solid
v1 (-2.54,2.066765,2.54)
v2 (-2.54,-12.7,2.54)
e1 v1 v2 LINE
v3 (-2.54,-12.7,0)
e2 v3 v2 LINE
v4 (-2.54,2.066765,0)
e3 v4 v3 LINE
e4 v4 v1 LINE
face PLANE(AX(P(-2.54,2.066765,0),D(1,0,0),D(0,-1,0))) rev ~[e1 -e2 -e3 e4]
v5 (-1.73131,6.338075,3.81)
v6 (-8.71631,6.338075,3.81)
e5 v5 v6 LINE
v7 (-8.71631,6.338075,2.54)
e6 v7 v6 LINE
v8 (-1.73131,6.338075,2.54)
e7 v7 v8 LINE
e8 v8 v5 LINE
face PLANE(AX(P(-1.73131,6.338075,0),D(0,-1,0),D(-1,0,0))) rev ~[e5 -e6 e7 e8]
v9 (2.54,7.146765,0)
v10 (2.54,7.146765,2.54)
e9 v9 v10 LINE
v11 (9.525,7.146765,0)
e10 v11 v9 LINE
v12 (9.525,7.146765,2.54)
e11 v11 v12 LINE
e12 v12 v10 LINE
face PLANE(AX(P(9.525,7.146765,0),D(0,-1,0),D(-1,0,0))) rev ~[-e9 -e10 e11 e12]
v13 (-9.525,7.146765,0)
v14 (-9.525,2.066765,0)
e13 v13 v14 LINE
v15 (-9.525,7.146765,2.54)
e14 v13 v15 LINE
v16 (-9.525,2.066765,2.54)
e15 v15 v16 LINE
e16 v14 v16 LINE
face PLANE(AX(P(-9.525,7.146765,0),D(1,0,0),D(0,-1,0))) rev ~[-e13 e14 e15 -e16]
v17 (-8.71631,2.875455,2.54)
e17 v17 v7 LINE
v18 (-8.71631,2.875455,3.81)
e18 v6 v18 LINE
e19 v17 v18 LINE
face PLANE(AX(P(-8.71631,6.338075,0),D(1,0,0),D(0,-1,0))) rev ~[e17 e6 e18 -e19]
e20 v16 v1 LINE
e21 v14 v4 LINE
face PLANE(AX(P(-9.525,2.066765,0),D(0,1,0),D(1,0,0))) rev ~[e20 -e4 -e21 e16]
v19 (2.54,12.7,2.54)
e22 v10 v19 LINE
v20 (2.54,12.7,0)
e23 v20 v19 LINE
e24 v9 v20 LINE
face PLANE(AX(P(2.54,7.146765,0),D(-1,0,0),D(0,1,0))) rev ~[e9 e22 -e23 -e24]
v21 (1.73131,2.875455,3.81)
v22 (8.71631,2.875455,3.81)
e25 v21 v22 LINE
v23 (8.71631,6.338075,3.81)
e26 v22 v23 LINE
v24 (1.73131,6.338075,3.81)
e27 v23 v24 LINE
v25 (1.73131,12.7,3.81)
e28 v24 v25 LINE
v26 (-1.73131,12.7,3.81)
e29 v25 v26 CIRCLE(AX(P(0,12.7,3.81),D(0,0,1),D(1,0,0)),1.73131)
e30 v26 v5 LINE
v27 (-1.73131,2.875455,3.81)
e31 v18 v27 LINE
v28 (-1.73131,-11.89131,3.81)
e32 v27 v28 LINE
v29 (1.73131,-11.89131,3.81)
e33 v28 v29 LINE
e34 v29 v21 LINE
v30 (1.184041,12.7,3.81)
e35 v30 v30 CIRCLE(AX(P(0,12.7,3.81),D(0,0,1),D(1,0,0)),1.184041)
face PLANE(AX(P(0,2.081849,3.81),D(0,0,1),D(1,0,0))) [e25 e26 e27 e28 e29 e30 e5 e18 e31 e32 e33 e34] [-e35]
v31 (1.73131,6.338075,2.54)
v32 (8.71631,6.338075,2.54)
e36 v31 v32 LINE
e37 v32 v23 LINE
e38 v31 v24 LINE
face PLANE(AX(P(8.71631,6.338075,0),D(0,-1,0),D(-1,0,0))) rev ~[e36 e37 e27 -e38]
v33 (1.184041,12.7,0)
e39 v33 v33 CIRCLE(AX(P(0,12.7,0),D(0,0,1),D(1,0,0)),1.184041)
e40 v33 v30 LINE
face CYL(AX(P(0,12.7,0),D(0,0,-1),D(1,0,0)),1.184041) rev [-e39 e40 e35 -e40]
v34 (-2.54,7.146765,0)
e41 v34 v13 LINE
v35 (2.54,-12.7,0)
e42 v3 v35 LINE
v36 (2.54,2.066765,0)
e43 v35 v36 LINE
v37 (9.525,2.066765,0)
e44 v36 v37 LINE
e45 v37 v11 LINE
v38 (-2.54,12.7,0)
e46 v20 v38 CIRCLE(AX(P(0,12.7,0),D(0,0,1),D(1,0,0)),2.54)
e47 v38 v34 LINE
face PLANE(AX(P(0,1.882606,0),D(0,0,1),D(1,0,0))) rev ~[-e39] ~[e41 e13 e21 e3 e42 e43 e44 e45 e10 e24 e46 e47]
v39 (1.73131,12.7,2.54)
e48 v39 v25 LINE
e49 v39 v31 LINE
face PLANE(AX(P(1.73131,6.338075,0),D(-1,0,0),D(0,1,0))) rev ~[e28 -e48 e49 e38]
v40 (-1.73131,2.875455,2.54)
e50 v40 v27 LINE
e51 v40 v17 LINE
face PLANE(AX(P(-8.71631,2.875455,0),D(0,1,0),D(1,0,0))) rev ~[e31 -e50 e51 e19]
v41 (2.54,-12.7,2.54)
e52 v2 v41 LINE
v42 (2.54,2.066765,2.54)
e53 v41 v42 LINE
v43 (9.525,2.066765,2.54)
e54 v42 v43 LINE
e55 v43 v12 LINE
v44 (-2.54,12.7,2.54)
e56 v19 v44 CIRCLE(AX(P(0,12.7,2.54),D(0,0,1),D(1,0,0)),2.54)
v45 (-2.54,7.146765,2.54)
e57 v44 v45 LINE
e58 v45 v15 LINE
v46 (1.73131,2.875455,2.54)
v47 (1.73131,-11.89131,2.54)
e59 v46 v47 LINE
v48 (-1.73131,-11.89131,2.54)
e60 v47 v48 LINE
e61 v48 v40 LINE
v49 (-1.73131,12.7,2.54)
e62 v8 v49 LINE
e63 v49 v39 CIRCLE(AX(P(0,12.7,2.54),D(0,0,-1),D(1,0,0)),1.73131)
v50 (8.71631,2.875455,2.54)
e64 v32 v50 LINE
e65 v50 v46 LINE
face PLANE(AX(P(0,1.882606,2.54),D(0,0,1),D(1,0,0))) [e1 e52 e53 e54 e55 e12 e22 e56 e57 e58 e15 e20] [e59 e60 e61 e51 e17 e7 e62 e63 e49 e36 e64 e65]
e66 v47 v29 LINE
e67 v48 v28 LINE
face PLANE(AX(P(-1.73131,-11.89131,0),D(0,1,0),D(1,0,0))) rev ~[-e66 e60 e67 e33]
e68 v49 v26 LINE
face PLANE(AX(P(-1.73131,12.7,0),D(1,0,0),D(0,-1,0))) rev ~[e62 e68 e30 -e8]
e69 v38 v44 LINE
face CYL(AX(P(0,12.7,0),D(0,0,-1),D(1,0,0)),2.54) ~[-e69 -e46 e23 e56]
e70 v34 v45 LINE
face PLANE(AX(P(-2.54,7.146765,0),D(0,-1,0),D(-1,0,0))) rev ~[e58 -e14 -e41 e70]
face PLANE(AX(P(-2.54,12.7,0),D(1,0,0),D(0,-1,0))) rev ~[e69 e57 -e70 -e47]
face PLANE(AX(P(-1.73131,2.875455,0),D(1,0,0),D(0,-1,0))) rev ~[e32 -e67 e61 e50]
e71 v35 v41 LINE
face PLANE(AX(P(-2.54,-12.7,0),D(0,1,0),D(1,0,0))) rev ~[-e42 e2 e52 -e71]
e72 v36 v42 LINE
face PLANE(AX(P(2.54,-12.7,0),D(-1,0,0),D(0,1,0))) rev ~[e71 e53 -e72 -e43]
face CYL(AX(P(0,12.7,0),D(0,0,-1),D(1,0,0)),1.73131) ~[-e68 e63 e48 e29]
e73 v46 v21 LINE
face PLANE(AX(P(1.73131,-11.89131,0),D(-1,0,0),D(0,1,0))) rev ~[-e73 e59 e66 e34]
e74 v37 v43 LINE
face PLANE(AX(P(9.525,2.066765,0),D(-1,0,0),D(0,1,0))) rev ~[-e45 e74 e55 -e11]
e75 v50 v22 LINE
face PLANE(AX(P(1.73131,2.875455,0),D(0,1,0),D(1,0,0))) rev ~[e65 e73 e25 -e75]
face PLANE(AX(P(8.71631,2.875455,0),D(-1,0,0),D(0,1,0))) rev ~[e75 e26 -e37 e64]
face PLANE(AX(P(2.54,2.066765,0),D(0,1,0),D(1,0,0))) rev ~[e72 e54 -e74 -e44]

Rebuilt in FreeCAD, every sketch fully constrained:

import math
import FreeCAD as App
import Part
import Sketcher
Q = App.Units.Quantity

doc = App.newDocument("Part")
body = doc.addObject("PartDesign::Body", "Body")

# Sketch on XY plane
sketch1 = body.newObject("Sketcher::SketchObject", "Sketch")
sketch1.AttachmentSupport = (doc.getObject("XY_Plane"), [""])
sketch1.MapMode = "FlatFace"
sketch1.addGeometry(Part.LineSegment(App.Vector(-2.5, 2.1, 0), App.Vector(-2.5, -12.7, 0)), False)
sketch1.addGeometry(Part.LineSegment(App.Vector(-2.5, -12.7, 0), App.Vector(2.5, -12.7, 0)), False)
sketch1.addGeometry(Part.LineSegment(App.Vector(2.5, -12.7, 0), App.Vector(2.5, 2.1, 0)), False)
sketch1.addGeometry(Part.LineSegment(App.Vector(2.5, 2.1, 0), App.Vector(9.5, 2.1, 0)), False)
sketch1.addGeometry(Part.LineSegment(App.Vector(9.5, 2.1, 0), App.Vector(9.5, 7.1, 0)), False)
sketch1.addGeometry(Part.LineSegment(App.Vector(9.5, 7.1, 0), App.Vector(2.5, 7.1, 0)), False)
sketch1.addGeometry(Part.LineSegment(App.Vector(2.5, 7.1, 0), App.Vector(2.5, 12.7, 0)), False)
sketch1.addGeometry(Part.ArcOfCircle(Part.Circle(App.Vector(0, 12.7, 0), App.Vector(0, 0, 1), 2.5), math.radians(0), math.radians(180)), False)
sketch1.addGeometry(Part.LineSegment(App.Vector(-2.5, 12.7, 0), App.Vector(-2.5, 7.1, 0)), False)
sketch1.addGeometry(Part.LineSegment(App.Vector(-2.5, 7.1, 0), App.Vector(-9.5, 7.1, 0)), False)
sketch1.addGeometry(Part.LineSegment(App.Vector(-9.5, 7.1, 0), App.Vector(-9.5, 2.1, 0)), False)
sketch1.addGeometry(Part.LineSegment(App.Vector(-9.5, 2.1, 0), App.Vector(-2.5, 2.1, 0)), False)
sketch1.addGeometry(Part.Circle(App.Vector(0, 12.7, 0), App.Vector(0, 0, 1), 1.2), False)
sketch1.addConstraint(Sketcher.Constraint("Coincident", 0, 2, 1, 1))
sketch1.addConstraint(Sketcher.Constraint("Coincident", 1, 2, 2, 1))
sketch1.addConstraint(Sketcher.Constraint("Coincident", 2, 2, 3, 1))
sketch1.addConstraint(Sketcher.Constraint("Coincident", 3, 2, 4, 1))
sketch1.addConstraint(Sketcher.Constraint("Coincident", 4, 2, 5, 1))
sketch1.addConstraint(Sketcher.Constraint("Coincident", 5, 2, 6, 1))
sketch1.addConstraint(Sketcher.Constraint("Tangent", 6, 2, 7, 1))
sketch1.addConstraint(Sketcher.Constraint("Tangent", 7, 2, 8, 1))
sketch1.addConstraint(Sketcher.Constraint("Coincident", 8, 2, 9, 1))
sketch1.addConstraint(Sketcher.Constraint("Coincident", 9, 2, 10, 1))
sketch1.addConstraint(Sketcher.Constraint("Coincident", 10, 2, 11, 1))
sketch1.addConstraint(Sketcher.Constraint("Coincident", 11, 2, 0, 1))
sketch1.addConstraint(Sketcher.Constraint("Vertical", 0))
sketch1.addConstraint(Sketcher.Constraint("Horizontal", 1))
sketch1.addConstraint(Sketcher.Constraint("Vertical", 2))
sketch1.addConstraint(Sketcher.Constraint("Horizontal", 3))
sketch1.addConstraint(Sketcher.Constraint("Vertical", 4))
sketch1.addConstraint(Sketcher.Constraint("Horizontal", 5))
sketch1.addConstraint(Sketcher.Constraint("Vertical", 6))
sketch1.addConstraint(Sketcher.Constraint("Vertical", 8))
sketch1.addConstraint(Sketcher.Constraint("Horizontal", 9))
sketch1.addConstraint(Sketcher.Constraint("Vertical", 10))
sketch1.addConstraint(Sketcher.Constraint("Horizontal", 11))
sketch1.addConstraint(Sketcher.Constraint("Coincident", 12, 3, 7, 3))
sketch1.addConstraint(Sketcher.Constraint("Symmetric", 0, 2, 6, 2, -1, 1))
sketch1.addConstraint(Sketcher.Constraint("Symmetric", 5, 2, 8, 2, -2))
sketch1.addConstraint(Sketcher.Constraint("Symmetric", 3, 2, 10, 2, -2))
sketch1.addConstraint(Sketcher.Constraint("Vertical", 2, 2, 5, 2))
sketch1.addConstraint(Sketcher.Constraint("Equal", 1, 4))
sketch1.addConstraint(Sketcher.Constraint("Radius", 7, Q("0.1 in")))
sketch1.addConstraint(Sketcher.Constraint("DistanceY", 0, 2, 7, 3, Q("1 in")))
sketch1.addConstraint(Sketcher.Constraint("DistanceX", 3, 1, 3, 2, Q("0.275 in")))
sketch1.addConstraint(Sketcher.Constraint("Diameter", 12, Q("2.368082 mm")))
sketch1.addConstraint(Sketcher.Constraint("DistanceY", 0, 2, 0, 1, Q("14.766765 mm")))
pad1 = body.newObject("PartDesign::Pad", "Pad")
pad1.Profile = sketch1
pad1.Length = Q("0.1 in")

# Sketch on XY plane
sketch2 = body.newObject("Sketcher::SketchObject", "Sketch001")
sketch2.AttachmentSupport = (doc.getObject("XY_Plane"), [""])
sketch2.MapMode = "FlatFace"
sketch2.addGeometry(Part.LineSegment(App.Vector(8.7, 6.3, 0), App.Vector(1.7, 6.3, 0)), False)
sketch2.addGeometry(Part.LineSegment(App.Vector(1.7, 6.3, 0), App.Vector(1.7, 12.7, 0)), False)
sketch2.addGeometry(Part.ArcOfCircle(Part.Circle(App.Vector(0, 12.7, 0), App.Vector(0, 0, 1), 1.7), math.radians(0), math.radians(180)), False)
sketch2.addGeometry(Part.LineSegment(App.Vector(-1.7, 12.7, 0), App.Vector(-1.7, 6.3, 0)), False)
sketch2.addGeometry(Part.LineSegment(App.Vector(-1.7, 6.3, 0), App.Vector(-8.7, 6.3, 0)), False)
sketch2.addGeometry(Part.LineSegment(App.Vector(-8.7, 6.3, 0), App.Vector(-8.7, 2.9, 0)), False)
sketch2.addGeometry(Part.LineSegment(App.Vector(-8.7, 2.9, 0), App.Vector(-1.7, 2.9, 0)), False)
sketch2.addGeometry(Part.LineSegment(App.Vector(-1.7, 2.9, 0), App.Vector(-1.7, -11.9, 0)), False)
sketch2.addGeometry(Part.LineSegment(App.Vector(-1.7, -11.9, 0), App.Vector(1.7, -11.9, 0)), False)
sketch2.addGeometry(Part.LineSegment(App.Vector(1.7, -11.9, 0), App.Vector(1.7, 2.9, 0)), False)
sketch2.addGeometry(Part.LineSegment(App.Vector(1.7, 2.9, 0), App.Vector(8.7, 2.9, 0)), False)
sketch2.addGeometry(Part.LineSegment(App.Vector(8.7, 2.9, 0), App.Vector(8.7, 6.3, 0)), False)
sketch2.addGeometry(Part.Circle(App.Vector(0, 12.7, 0), App.Vector(0, 0, 1), 1.2), False)
sketch2.addConstraint(Sketcher.Constraint("Coincident", 0, 2, 1, 1))
sketch2.addConstraint(Sketcher.Constraint("Tangent", 1, 2, 2, 1))
sketch2.addConstraint(Sketcher.Constraint("Tangent", 2, 2, 3, 1))
sketch2.addConstraint(Sketcher.Constraint("Coincident", 3, 2, 4, 1))
sketch2.addConstraint(Sketcher.Constraint("Coincident", 4, 2, 5, 1))
sketch2.addConstraint(Sketcher.Constraint("Coincident", 5, 2, 6, 1))
sketch2.addConstraint(Sketcher.Constraint("Coincident", 6, 2, 7, 1))
sketch2.addConstraint(Sketcher.Constraint("Coincident", 7, 2, 8, 1))
sketch2.addConstraint(Sketcher.Constraint("Coincident", 8, 2, 9, 1))
sketch2.addConstraint(Sketcher.Constraint("Coincident", 9, 2, 10, 1))
sketch2.addConstraint(Sketcher.Constraint("Coincident", 10, 2, 11, 1))
sketch2.addConstraint(Sketcher.Constraint("Coincident", 11, 2, 0, 1))
sketch2.addConstraint(Sketcher.Constraint("Horizontal", 0))
sketch2.addConstraint(Sketcher.Constraint("Vertical", 1))
sketch2.addConstraint(Sketcher.Constraint("Vertical", 3))
sketch2.addConstraint(Sketcher.Constraint("Horizontal", 4))
sketch2.addConstraint(Sketcher.Constraint("Vertical", 5))
sketch2.addConstraint(Sketcher.Constraint("Horizontal", 6))
sketch2.addConstraint(Sketcher.Constraint("Vertical", 7))
sketch2.addConstraint(Sketcher.Constraint("Horizontal", 8))
sketch2.addConstraint(Sketcher.Constraint("Vertical", 9))
sketch2.addConstraint(Sketcher.Constraint("Horizontal", 10))
sketch2.addConstraint(Sketcher.Constraint("Vertical", 11))
sketch2.addConstraint(Sketcher.Constraint("Coincident", 12, 3, 2, 3))
sketch2.addConstraint(Sketcher.Constraint("Symmetric", 0, 2, 3, 2, -2))
sketch2.addConstraint(Sketcher.Constraint("Symmetric", 6, 2, 9, 2, -2))
sketch2.addConstraint(Sketcher.Constraint("Vertical", 3, 2, 6, 2))
sketch2.addConstraint(Sketcher.Constraint("Equal", 0, 4))
sketch2.addConstraint(Sketcher.Constraint("Equal", 8, 5))
sketch2.addConstraint(Sketcher.Constraint("DistanceY", -1, 1, 2, 3, Q("0.5 in")))
sketch2.addConstraint(Sketcher.Constraint("DistanceX", 0, 2, 0, 1, Q("0.275 in")))
sketch2.addConstraint(Sketcher.Constraint("Diameter", 12, Q("2.368082 mm")))
sketch2.addConstraint(Sketcher.Constraint("Radius", 2, Q("1.73131 mm")))
sketch2.addConstraint(Sketcher.Constraint("DistanceY", 1, 1, 1, 2, Q("6.361925 mm")))
sketch2.addConstraint(Sketcher.Constraint("DistanceY", 7, 2, 7, 1, Q("14.766765 mm")))
pad2 = body.newObject("PartDesign::Pad", "Pad001")
pad2.Profile = sketch2
pad2.Length = Q("0.15 in")

doc.recompute()
